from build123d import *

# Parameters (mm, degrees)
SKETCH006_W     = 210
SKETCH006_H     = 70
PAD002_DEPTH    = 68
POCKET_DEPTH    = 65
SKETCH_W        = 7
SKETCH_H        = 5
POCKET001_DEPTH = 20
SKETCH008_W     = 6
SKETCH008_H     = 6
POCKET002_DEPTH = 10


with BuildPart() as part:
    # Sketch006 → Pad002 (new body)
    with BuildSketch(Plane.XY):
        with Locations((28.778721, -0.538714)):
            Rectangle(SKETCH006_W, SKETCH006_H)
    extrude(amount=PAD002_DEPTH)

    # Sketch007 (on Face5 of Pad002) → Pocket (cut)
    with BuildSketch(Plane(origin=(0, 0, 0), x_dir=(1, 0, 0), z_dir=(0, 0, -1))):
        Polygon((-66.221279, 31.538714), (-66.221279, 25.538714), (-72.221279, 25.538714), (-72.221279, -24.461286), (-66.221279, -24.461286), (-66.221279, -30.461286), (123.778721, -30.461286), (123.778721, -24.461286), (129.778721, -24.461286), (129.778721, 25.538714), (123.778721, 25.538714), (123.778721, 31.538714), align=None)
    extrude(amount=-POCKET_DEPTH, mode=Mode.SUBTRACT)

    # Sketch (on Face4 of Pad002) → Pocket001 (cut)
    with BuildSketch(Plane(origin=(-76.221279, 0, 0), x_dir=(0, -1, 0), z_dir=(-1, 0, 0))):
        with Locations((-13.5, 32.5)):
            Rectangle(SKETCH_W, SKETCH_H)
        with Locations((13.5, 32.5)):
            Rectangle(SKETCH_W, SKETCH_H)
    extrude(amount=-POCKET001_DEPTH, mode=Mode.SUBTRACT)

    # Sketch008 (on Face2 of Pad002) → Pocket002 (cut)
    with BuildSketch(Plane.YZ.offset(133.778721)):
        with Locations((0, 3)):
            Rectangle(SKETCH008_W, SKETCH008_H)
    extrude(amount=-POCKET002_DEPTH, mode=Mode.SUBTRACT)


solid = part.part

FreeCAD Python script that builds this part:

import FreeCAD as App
import Part
import Sketcher

V = App.Vector

doc = App.newDocument("Part")
body = doc.addObject("PartDesign::Body", "Body")

sketch1 = doc.addObject("Sketcher::SketchObject", "Sketch")
body.addObject(sketch1)
sketch1.AttachmentSupport = (doc.XY_Plane, [""])
sketch1.MapMode = "FlatFace"
sketch1.addGeometry(Part.LineSegment(V(-76.221279, 34.461286, 0), V(-76.221279, -35.538714, 0)), False)
sketch1.addGeometry(Part.LineSegment(V(-76.221279, -35.538714, 0), V(133.778721, -35.538714, 0)), False)
sketch1.addGeometry(Part.LineSegment(V(133.778721, -35.538714, 0), V(133.778721, 34.461286, 0)), False)
sketch1.addGeometry(Part.LineSegment(V(133.778721, 34.461286, 0), V(-76.221279, 34.461286, 0)), False)
sketch1.addConstraint(Sketcher.Constraint("Coincident", 0, 2, 1, 1))
sketch1.addConstraint(Sketcher.Constraint("Coincident", 1, 2, 2, 1))
sketch1.addConstraint(Sketcher.Constraint("Coincident", 2, 2, 3, 1))
sketch1.addConstraint(Sketcher.Constraint("Coincident", 3, 2, 0, 1))
sketch1.addConstraint(Sketcher.Constraint("Vertical", 0))
sketch1.addConstraint(Sketcher.Constraint("Horizontal", 1))
sketch1.addConstraint(Sketcher.Constraint("Vertical", 2))
sketch1.addConstraint(Sketcher.Constraint("Horizontal", 3))
sketch1.addConstraint(Sketcher.Constraint("DistanceX", 1, 1, 1, 2, 210.0))
sketch1.addConstraint(Sketcher.Constraint("DistanceY", 0, 2, 0, 1, 70.0))
sketch1.addConstraint(Sketcher.Constraint("DistanceX", 0, 2, -1, 1, 76.221279))
sketch1.addConstraint(Sketcher.Constraint("DistanceY", 0, 2, -1, 1, 35.538714))
pad1 = doc.addObject("PartDesign::Pad", "Pad")
body.addObject(pad1)
pad1.Profile = sketch1
pad1.Length = 68

sketch2 = doc.addObject("Sketcher::SketchObject", "Sketch001")
body.addObject(sketch2)
sketch2.AttachmentSupport = (doc.XY_Plane, [""])
sketch2.MapMode = "FlatFace"
sketch2.addGeometry(Part.LineSegment(V(-66.221279, -31.538714, 0), V(-66.221279, -25.538714, 0)), False)
sketch2.addGeometry(Part.LineSegment(V(-66.221279, -25.538714, 0), V(-72.221279, -25.538714, 0)), False)
sketch2.addGeometry(Part.LineSegment(V(-72.221279, -25.538714, 0), V(-72.221279, 24.461286, 0)), False)
sketch2.addGeometry(Part.LineSegment(V(-72.221279, 24.461286, 0), V(-66.221279, 24.461286, 0)), False)
sketch2.addGeometry(Part.LineSegment(V(-66.221279, 24.461286, 0), V(-66.221279, 30.461286, 0)), False)
sketch2.addGeometry(Part.LineSegment(V(-66.221279, 30.461286, 0), V(123.778721, 30.461286, 0)), False)
sketch2.addGeometry(Part.LineSegment(V(123.778721, 30.461286, 0), V(123.778721, 24.461286, 0)), False)
sketch2.addGeometry(Part.LineSegment(V(123.778721, 24.461286, 0), V(129.778721, 24.461286, 0)), False)
sketch2.addGeometry(Part.LineSegment(V(129.778721, 24.461286, 0), V(129.778721, -25.538714, 0)), False)
sketch2.addGeometry(Part.LineSegment(V(129.778721, -25.538714, 0), V(123.778721, -25.538714, 0)), False)
sketch2.addGeometry(Part.LineSegment(V(123.778721, -25.538714, 0), V(123.778721, -31.538714, 0)), False)
sketch2.addGeometry(Part.LineSegment(V(123.778721, -31.538714, 0), V(-66.221279, -31.538714, 0)), False)
sketch2.addConstraint(Sketcher.Constraint("Coincident", 0, 2, 1, 1))
sketch2.addConstraint(Sketcher.Constraint("Coincident", 1, 2, 2, 1))
sketch2.addConstraint(Sketcher.Constraint("Coincident", 2, 2, 3, 1))
sketch2.addConstraint(Sketcher.Constraint("Coincident", 3, 2, 4, 1))
sketch2.addConstraint(Sketcher.Constraint("Coincident", 4, 2, 5, 1))
sketch2.addConstraint(Sketcher.Constraint("Coincident", 5, 2, 6, 1))
sketch2.addConstraint(Sketcher.Constraint("Coincident", 6, 2, 7, 1))
sketch2.addConstraint(Sketcher.Constraint("Coincident", 7, 2, 8, 1))
sketch2.addConstraint(Sketcher.Constraint("Coincident", 8, 2, 9, 1))
sketch2.addConstraint(Sketcher.Constraint("Coincident", 9, 2, 10, 1))
sketch2.addConstraint(Sketcher.Constraint("Coincident", 10, 2, 11, 1))
sketch2.addConstraint(Sketcher.Constraint("Coincident", 11, 2, 0, 1))
sketch2.addConstraint(Sketcher.Constraint("Vertical", 0))
sketch2.addConstraint(Sketcher.Constraint("Horizontal", 1))
sketch2.addConstraint(Sketcher.Constraint("Vertical", 2))
sketch2.addConstraint(Sketcher.Constraint("Horizontal", 3))
sketch2.addConstraint(Sketcher.Constraint("Vertical", 4))
sketch2.addConstraint(Sketcher.Constraint("Horizontal", 5))
sketch2.addConstraint(Sketcher.Constraint("Vertical", 6))
sketch2.addConstraint(Sketcher.Constraint("Horizontal", 7))
sketch2.addConstraint(Sketcher.Constraint("Vertical", 8))
sketch2.addConstraint(Sketcher.Constraint("Horizontal", 9))
sketch2.addConstraint(Sketcher.Constraint("Vertical", 10))
sketch2.addConstraint(Sketcher.Constraint("Horizontal", 11))
sketch2.addConstraint(Sketcher.Constraint("Horizontal", 3, 2, 6, 2))
sketch2.addConstraint(Sketcher.Constraint("Horizontal", 1, 2, 8, 2))
sketch2.addConstraint(Sketcher.Constraint("Vertical", 0, 2, 3, 2))
sketch2.addConstraint(Sketcher.Constraint("Vertical", 6, 2, 9, 2))
sketch2.addConstraint(Sketcher.Constraint("Equal", 3, 7))
sketch2.addConstraint(Sketcher.Constraint("Equal", 9, 0))
sketch2.addConstraint(Sketcher.Constraint("Equal", 0, 4))
sketch2.addConstraint(Sketcher.Constraint("DistanceX", 1, 2, 1, 1, 6.0))
sketch2.addConstraint(Sketcher.Constraint("DistanceX", 5, 1, 5, 2, 190.0))
sketch2.addConstraint(Sketcher.Constraint("DistanceY", 2, 1, 2, 2, 50.0))
sketch2.addConstraint(Sketcher.Constraint("DistanceX", 0, 2, -1, 1, 66.221279))
sketch2.addConstraint(Sketcher.Constraint("DistanceY", 0, 2, -1, 1, 25.538714))
pocket1 = doc.addObject("PartDesign::Pocket", "Pocket")
body.addObject(pocket1)
pocket1.Profile = sketch2
pocket1.Length = 65
pocket1.Reversed = True

sketch3 = doc.addObject("Sketcher::SketchObject", "Sketch002")
body.addObject(sketch3)
sketch3.AttachmentSupport = (doc.YZ_Plane, [""])
sketch3.MapMode = "FlatFace"
sketch3.AttachmentOffset = App.Placement(V(0, 0, -76.221279), App.Rotation())
sketch3.addGeometry(Part.LineSegment(V(17, 35, 0), V(17, 30, 0)), False)
sketch3.addGeometry(Part.LineSegment(V(17, 30, 0), V(10, 30, 0)), False)
sketch3.addGeometry(Part.LineSegment(V(10, 30, 0), V(10, 35, 0)), False)
sketch3.addGeometry(Part.LineSegment(V(10, 35, 0), V(17, 35, 0)), False)
sketch3.addGeometry(Part.LineSegment(V(-10, 35, 0), V(-10, 30, 0)), False)
sketch3.addGeometry(Part.LineSegment(V(-10, 30, 0), V(-17, 30, 0)), False)
sketch3.addGeometry(Part.LineSegment(V(-17, 30, 0), V(-17, 35, 0)), False)
sketch3.addGeometry(Part.LineSegment(V(-17, 35, 0), V(-10, 35, 0)), False)
sketch3.addConstraint(Sketcher.Constraint("Coincident", 0, 2, 1, 1))
sketch3.addConstraint(Sketcher.Constraint("Coincident", 1, 2, 2, 1))
sketch3.addConstraint(Sketcher.Constraint("Coincident", 2, 2, 3, 1))
sketch3.addConstraint(Sketcher.Constraint("Coincident", 3, 2, 0, 1))
sketch3.addConstraint(Sketcher.Constraint("Coincident", 4, 2, 5, 1))
sketch3.addConstraint(Sketcher.Constraint("Coincident", 5, 2, 6, 1))
sketch3.addConstraint(Sketcher.Constraint("Coincident", 6, 2, 7, 1))
sketch3.addConstraint(Sketcher.Constraint("Coincident", 7, 2, 4, 1))
sketch3.addConstraint(Sketcher.Constraint("Vertical", 0))
sketch3.addConstraint(Sketcher.Constraint("Horizontal", 1))
sketch3.addConstraint(Sketcher.Constraint("Vertical", 2))
sketch3.addConstraint(Sketcher.Constraint("Horizontal", 3))
sketch3.addConstraint(Sketcher.Constraint("Vertical", 4))
sketch3.addConstraint(Sketcher.Constraint("Horizontal", 5))
sketch3.addConstraint(Sketcher.Constraint("Vertical", 6))
sketch3.addConstraint(Sketcher.Constraint("Horizontal", 7))
sketch3.addConstraint(Sketcher.Constraint("Symmetric", 1, 2, 4, 2, -2))
sketch3.addConstraint(Sketcher.Constraint("Symmetric", 3, 2, 6, 2, -2))
sketch3.addConstraint(Sketcher.Constraint("DistanceX", 1, 2, 1, 1, 7.0))
sketch3.addConstraint(Sketcher.Constraint("DistanceY", 0, 2, 0, 1, 5.0))
sketch3.addConstraint(Sketcher.Constraint("DistanceX", -1, 1, 0, 2, 17.0))
sketch3.addConstraint(Sketcher.Constraint("DistanceY", -1, 1, 0, 2, 30.0))
pocket2 = doc.addObject("PartDesign::Pocket", "Pocket001")
body.addObject(pocket2)
pocket2.Profile = sketch3
pocket2.Length = 20
pocket2.Reversed = True

sketch4 = doc.addObject("Sketcher::SketchObject", "Sketch003")
body.addObject(sketch4)
sketch4.AttachmentSupport = (doc.YZ_Plane, [""])
sketch4.MapMode = "FlatFace"
sketch4.AttachmentOffset = App.Placement(V(0, 0, 133.778721), App.Rotation())
sketch4.addGeometry(Part.LineSegment(V(-3, 6, 0), V(-3, 0, 0)), False)
sketch4.addGeometry(Part.LineSegment(V(-3, 0, 0), V(3, 0, 0)), False)
sketch4.addGeometry(Part.LineSegment(V(3, 0, 0), V(3, 6, 0)), False)
sketch4.addGeometry(Part.LineSegment(V(3, 6, 0), V(-3, 6, 0)), False)
sketch4.addConstraint(Sketcher.Constraint("Coincident", 0, 2, 1, 1))
sketch4.addConstraint(Sketcher.Constraint("Coincident", 1, 2, 2, 1))
sketch4.addConstraint(Sketcher.Constraint("Coincident", 2, 2, 3, 1))
sketch4.addConstraint(Sketcher.Constraint("Coincident", 3, 2, 0, 1))
sketch4.addConstraint(Sketcher.Constraint("Vertical", 0))
sketch4.addConstraint(Sketcher.Constraint("Horizontal", 1))
sketch4.addConstraint(Sketcher.Constraint("Vertical", 2))
sketch4.addConstraint(Sketcher.Constraint("Horizontal", 3))
sketch4.addConstraint(Sketcher.Constraint("Symmetric", 0, 2, 1, 2, -1, 1))
sketch4.addConstraint(Sketcher.Constraint("Equal", 3, 0))
sketch4.addConstraint(Sketcher.Constraint("DistanceX", 1, 1, 1, 2, 6.0))
pocket3 = doc.addObject("PartDesign::Pocket", "Pocket002")
body.addObject(pocket3)
pocket3.Profile = sketch4
pocket3.Length = 10

doc.recompute()
